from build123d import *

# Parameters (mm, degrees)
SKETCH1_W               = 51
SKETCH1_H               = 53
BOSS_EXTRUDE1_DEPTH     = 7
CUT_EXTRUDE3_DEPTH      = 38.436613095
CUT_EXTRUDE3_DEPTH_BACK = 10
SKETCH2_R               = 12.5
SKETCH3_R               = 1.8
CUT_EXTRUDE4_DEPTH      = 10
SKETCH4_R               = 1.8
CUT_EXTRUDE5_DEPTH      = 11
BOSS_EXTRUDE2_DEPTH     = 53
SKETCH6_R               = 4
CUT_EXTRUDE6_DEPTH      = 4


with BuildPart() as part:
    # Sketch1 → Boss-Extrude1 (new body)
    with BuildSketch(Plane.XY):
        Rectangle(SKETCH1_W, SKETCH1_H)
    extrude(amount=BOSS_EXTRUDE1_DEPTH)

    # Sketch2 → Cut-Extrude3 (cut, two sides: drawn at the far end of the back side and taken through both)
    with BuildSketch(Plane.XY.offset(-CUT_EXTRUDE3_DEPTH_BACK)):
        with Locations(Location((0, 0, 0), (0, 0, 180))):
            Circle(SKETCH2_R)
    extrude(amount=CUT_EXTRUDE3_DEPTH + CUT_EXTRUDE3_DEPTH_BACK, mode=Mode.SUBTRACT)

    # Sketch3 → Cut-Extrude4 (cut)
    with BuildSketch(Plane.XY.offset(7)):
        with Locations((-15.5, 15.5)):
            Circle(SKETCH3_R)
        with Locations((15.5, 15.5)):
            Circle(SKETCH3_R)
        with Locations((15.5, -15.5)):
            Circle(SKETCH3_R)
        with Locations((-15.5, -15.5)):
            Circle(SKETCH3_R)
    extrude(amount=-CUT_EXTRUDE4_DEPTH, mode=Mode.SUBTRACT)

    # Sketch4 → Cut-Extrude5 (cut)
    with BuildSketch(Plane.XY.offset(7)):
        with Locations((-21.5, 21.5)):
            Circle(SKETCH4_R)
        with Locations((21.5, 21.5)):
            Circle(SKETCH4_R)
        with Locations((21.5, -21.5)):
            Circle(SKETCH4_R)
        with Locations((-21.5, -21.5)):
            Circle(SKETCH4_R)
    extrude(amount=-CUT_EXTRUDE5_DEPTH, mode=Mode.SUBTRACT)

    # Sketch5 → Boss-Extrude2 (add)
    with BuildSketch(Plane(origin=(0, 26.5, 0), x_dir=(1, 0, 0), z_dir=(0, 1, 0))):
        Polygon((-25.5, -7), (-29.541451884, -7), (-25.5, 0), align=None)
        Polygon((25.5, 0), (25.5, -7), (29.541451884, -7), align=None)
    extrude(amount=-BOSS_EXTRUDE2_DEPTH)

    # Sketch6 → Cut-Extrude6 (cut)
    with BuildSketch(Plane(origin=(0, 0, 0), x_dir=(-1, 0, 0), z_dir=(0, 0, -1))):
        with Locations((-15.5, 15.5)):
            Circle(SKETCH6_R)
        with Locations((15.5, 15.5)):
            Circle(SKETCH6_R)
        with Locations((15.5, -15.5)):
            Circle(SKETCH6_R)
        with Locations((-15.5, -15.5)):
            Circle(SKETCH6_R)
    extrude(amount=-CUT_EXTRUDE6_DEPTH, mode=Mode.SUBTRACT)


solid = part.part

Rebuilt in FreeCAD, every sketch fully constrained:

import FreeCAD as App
import Part
import Sketcher

V = App.Vector
Q = App.Units.Quantity


def add_polygon(sketch, points):
    """Adds a closed chain of lines whose ends are joined by coincident constraints."""
    first, n = sketch.GeometryCount, len(points)
    for a, b in zip(points, points[1:] + points[:1]):
        sketch.addGeometry(Part.LineSegment(App.Vector(*a, 0), App.Vector(*b, 0)), False)
    for i in range(n):
        sketch.addConstraint(Sketcher.Constraint("Coincident", first + i, 2, first + (i + 1) % n, 1))

doc = App.newDocument("Part")
body = doc.addObject("PartDesign::Body", "Body")

# Sketch on XY plane
sketch1 = body.newObject("Sketcher::SketchObject", "Sketch")
sketch1.AttachmentSupport = (doc.getObject("XY_Plane"), [""])
sketch1.MapMode = "FlatFace"
add_polygon(sketch1, [(-26, 26), (-26, -26), (26, -26), (26, 26)])  # lines 0-3
sketch1.addConstraint([
    Sketcher.Constraint("Vertical", 0),
    Sketcher.Constraint("Horizontal", 1),
    Sketcher.Constraint("Vertical", 2),
    Sketcher.Constraint("Horizontal", 3),
    Sketcher.Constraint("Symmetric", 0, 2, 2, 2, -1, 1),
    Sketcher.Constraint("DistanceX", 1, 1, 1, 2, Q("51 mm")),
    Sketcher.Constraint("DistanceY", 0, 2, 0, 1, Q("53 mm")),
])
pad1 = body.newObject("PartDesign::Pad", "Pad")
pad1.Profile = sketch1
pad1.Length = 7

# Sketch on XY plane
sketch2 = body.newObject("Sketcher::SketchObject", "Sketch001")
sketch2.AttachmentSupport = (doc.getObject("XY_Plane"), [""])
sketch2.MapMode = "FlatFace"
sketch2.addGeometry(Part.Circle(V(0, 0, 0), V(0, 0, 1), 12), False)
sketch2.addConstraint([
    Sketcher.Constraint("Coincident", 0, 3, -1, 1),
    Sketcher.Constraint("Diameter", 0, Q("25 mm")),
])
pocket1 = body.newObject("PartDesign::Pocket", "Pocket")
pocket1.Profile = sketch2
pocket1.Type = "ThroughAll"
pocket1.Midplane = True

# Sketch on XY plane
sketch3 = body.newObject("Sketcher::SketchObject", "Sketch002")
sketch3.AttachmentSupport = (doc.getObject("XY_Plane"), [""])
sketch3.MapMode = "FlatFace"
sketch3.AttachmentOffset = App.Placement(V(0, 0, 7), App.Rotation())
sketch3.addGeometry([
    Part.Circle(V(-15.5, 15.5, 0), V(0, 0, 1), 1.8),
    Part.Circle(V(15.5, 15.5, 0), V(0, 0, 1), 1.8),
    Part.Circle(V(15.5, -15.5, 0), V(0, 0, 1), 1.8),
    Part.Circle(V(-15.5, -15.5, 0), V(0, 0, 1), 1.8),
], False)
sketch3.addConstraint([
    Sketcher.Constraint("Equal", 0, 1),
    Sketcher.Constraint("Equal", 1, 2),
    Sketcher.Constraint("Equal", 2, 3),
    Sketcher.Constraint("Symmetric", 0, 3, 2, 3, -1, 1),
    Sketcher.Constraint("Symmetric", 1, 3, 3, 3, -1, 1),
    Sketcher.Constraint("Symmetric", 0, 3, 1, 3, -2),
    Sketcher.Constraint("Diameter", 0, Q("3.6 mm")),
    Sketcher.Constraint("DistanceX", 0, 3, 1, 3, Q("31 mm")),
    Sketcher.Constraint("DistanceY", 2, 3, 1, 3, Q("31 mm")),
])
pocket2 = body.newObject("PartDesign::Pocket", "Pocket001")
pocket2.Profile = sketch3
pocket2.Length = 10

# Sketch on XY plane
sketch4 = body.newObject("Sketcher::SketchObject", "Sketch003")
sketch4.AttachmentSupport = (doc.getObject("XY_Plane"), [""])
sketch4.MapMode = "FlatFace"
sketch4.AttachmentOffset = App.Placement(V(0, 0, 7), App.Rotation())
sketch4.addGeometry([
    Part.Circle(V(-21.5, 21.5, 0), V(0, 0, 1), 1.8),
    Part.Circle(V(21.5, 21.5, 0), V(0, 0, 1), 1.8),
    Part.Circle(V(21.5, -21.5, 0), V(0, 0, 1), 1.8),
    Part.Circle(V(-21.5, -21.5, 0), V(0, 0, 1), 1.8),
], False)
sketch4.addConstraint([
    Sketcher.Constraint("Equal", 0, 1),
    Sketcher.Constraint("Equal", 1, 2),
    Sketcher.Constraint("Equal", 2, 3),
    Sketcher.Constraint("Symmetric", 0, 3, 2, 3, -1, 1),
    Sketcher.Constraint("Symmetric", 1, 3, 3, 3, -1, 1),
    Sketcher.Constraint("Symmetric", 0, 3, 1, 3, -2),
    Sketcher.Constraint("Diameter", 0, Q("3.6 mm")),
    Sketcher.Constraint("DistanceX", 0, 3, 1, 3, Q("43 mm")),
    Sketcher.Constraint("DistanceY", 2, 3, 1, 3, Q("43 mm")),
])
pocket3 = body.newObject("PartDesign::Pocket", "Pocket002")
pocket3.Profile = sketch4
pocket3.Length = 11

# Sketch on XZ plane
sketch5 = body.newObject("Sketcher::SketchObject", "Sketch004")
sketch5.AttachmentSupport = (doc.getObject("XZ_Plane"), [""])
sketch5.MapMode = "FlatFace"
sketch5.AttachmentOffset = App.Placement(V(0, 0, -26.5), App.Rotation())
add_polygon(sketch5, [(-29.5, 7), (-25.5, 7), (-25.5, 0)])  # lines 0-2
add_polygon(sketch5, [(25.5, 0), (25.5, 7), (29.5, 7)])  # lines 3-5
sketch5.addConstraint([
    Sketcher.Constraint("Horizontal", 0),
    Sketcher.Constraint("Vertical", 1),
    Sketcher.Constraint("Vertical", 3),
    Sketcher.Constraint("Horizontal", 4),
    Sketcher.Constraint("Symmetric", 1, 2, 5, 2, -1, 1),
    Sketcher.Constraint("Symmetric", 2, 2, 4, 2, -2),
    Sketcher.Constraint("PointOnObject", 1, 2, -1),
    Sketcher.Constraint("DistanceY", 1, 2, 1, 1, Q("7 mm")),
    Sketcher.Constraint("Angle", 2, Q("120 deg")),
    Sketcher.Constraint("DistanceX", 0, 2, 3, 2, Q("51 mm")),
])
pad2 = body.newObject("PartDesign::Pad", "Pad001")
pad2.Profile = sketch5
pad2.Length = 53

# Sketch on XY plane
sketch6 = body.newObject("Sketcher::SketchObject", "Sketch005")
sketch6.AttachmentSupport = (doc.getObject("XY_Plane"), [""])
sketch6.MapMode = "FlatFace"
sketch6.addGeometry([
    Part.Circle(V(15.5, 15.5, 0), V(0, 0, 1), 4),
    Part.Circle(V(-15.5, 15.5, 0), V(0, 0, 1), 4),
    Part.Circle(V(-15.5, -15.5, 0), V(0, 0, 1), 4),
    Part.Circle(V(15.5, -15.5, 0), V(0, 0, 1), 4),
], False)
sketch6.addConstraint([
    Sketcher.Constraint("Equal", 0, 1),
    Sketcher.Constraint("Equal", 1, 2),
    Sketcher.Constraint("Equal", 2, 3),
    Sketcher.Constraint("Symmetric", 0, 3, 2, 3, -1, 1),
    Sketcher.Constraint("Symmetric", 1, 3, 3, 3, -1, 1),
    Sketcher.Constraint("Symmetric", 0, 3, 1, 3, -2),
    Sketcher.Constraint("Diameter", 0, Q("8 mm")),
    Sketcher.Constraint("DistanceX", 1, 3, 0, 3, Q("31 mm")),
    Sketcher.Constraint("DistanceY", 2, 3, 1, 3, Q("31 mm")),
])
pocket4 = body.newObject("PartDesign::Pocket", "Pocket003")
pocket4.Profile = sketch6
pocket4.Length = 4
pocket4.Reversed = True

doc.recompute()
